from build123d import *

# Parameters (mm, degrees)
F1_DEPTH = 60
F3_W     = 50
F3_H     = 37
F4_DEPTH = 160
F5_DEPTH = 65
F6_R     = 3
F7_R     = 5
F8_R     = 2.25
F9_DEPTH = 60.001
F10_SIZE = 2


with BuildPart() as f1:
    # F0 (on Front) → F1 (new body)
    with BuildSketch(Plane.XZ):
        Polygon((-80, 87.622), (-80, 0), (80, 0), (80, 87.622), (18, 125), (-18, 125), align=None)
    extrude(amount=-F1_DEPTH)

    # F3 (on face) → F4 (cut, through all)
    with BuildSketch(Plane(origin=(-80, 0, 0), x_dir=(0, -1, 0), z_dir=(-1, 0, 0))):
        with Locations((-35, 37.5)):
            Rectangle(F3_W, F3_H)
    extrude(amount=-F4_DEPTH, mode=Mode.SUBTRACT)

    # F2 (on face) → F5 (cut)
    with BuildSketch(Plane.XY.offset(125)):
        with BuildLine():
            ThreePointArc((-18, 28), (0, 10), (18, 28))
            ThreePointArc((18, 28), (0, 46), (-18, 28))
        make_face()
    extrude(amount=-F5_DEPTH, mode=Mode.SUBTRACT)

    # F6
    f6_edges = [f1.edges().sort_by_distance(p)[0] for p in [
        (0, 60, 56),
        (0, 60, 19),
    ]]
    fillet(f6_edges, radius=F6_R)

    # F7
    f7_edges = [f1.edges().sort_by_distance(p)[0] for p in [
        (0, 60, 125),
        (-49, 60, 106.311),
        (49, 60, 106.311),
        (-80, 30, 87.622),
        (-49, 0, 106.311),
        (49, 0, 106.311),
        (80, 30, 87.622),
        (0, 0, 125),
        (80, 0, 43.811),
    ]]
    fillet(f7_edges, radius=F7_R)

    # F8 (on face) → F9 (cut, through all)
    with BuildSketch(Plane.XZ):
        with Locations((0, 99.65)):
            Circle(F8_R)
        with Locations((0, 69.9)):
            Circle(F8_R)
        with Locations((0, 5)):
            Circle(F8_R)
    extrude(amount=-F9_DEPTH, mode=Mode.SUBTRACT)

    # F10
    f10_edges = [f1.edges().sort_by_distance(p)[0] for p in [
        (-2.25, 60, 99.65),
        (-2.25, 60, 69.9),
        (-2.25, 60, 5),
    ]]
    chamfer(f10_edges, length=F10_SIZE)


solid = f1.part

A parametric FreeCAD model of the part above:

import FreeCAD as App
import Part
import Sketcher
from FreeCAD import Vector
Q = App.Units.Quantity


def edges_at(feature, points):
    """Names of the edges that pass closest to the given points."""
    edges = feature.Shape.Edges
    near = lambda p: min(range(len(edges)), key=lambda i: edges[i].distToShape(Part.Vertex(*p))[0])
    return sorted({f"Edge{near(p) + 1}" for p in points})

doc = App.newDocument("Part")
body = doc.addObject("PartDesign::Body", "Body")

sketch1 = body.newObject("Sketcher::SketchObject", "Sketch")
sketch1.AttachmentSupport = (doc.getObject("XZ_Plane"), [""])
sketch1.MapMode = "FlatFace"
sketch1.addGeometry(Part.LineSegment(Vector(-80, 88, 0), Vector(-80, 0, 0)), False)
sketch1.addGeometry(Part.LineSegment(Vector(-80, 0, 0), Vector(80, 0, 0)), False)
sketch1.addGeometry(Part.LineSegment(Vector(80, 0, 0), Vector(80, 88, 0)), False)
sketch1.addGeometry(Part.LineSegment(Vector(80, 88, 0), Vector(18, 125, 0)), False)
sketch1.addGeometry(Part.LineSegment(Vector(18, 125, 0), Vector(-18, 125, 0)), False)
sketch1.addGeometry(Part.LineSegment(Vector(-18, 125, 0), Vector(-80, 88, 0)), False)
sketch1.addConstraint(Sketcher.Constraint("Coincident", 0, 2, 1, 1))
sketch1.addConstraint(Sketcher.Constraint("Coincident", 1, 2, 2, 1))
sketch1.addConstraint(Sketcher.Constraint("Coincident", 2, 2, 3, 1))
sketch1.addConstraint(Sketcher.Constraint("Coincident", 3, 2, 4, 1))
sketch1.addConstraint(Sketcher.Constraint("Coincident", 4, 2, 5, 1))
sketch1.addConstraint(Sketcher.Constraint("Coincident", 5, 2, 0, 1))
sketch1.addConstraint(Sketcher.Constraint("Vertical", 0))
sketch1.addConstraint(Sketcher.Constraint("Horizontal", 1))
sketch1.addConstraint(Sketcher.Constraint("Vertical", 2))
sketch1.addConstraint(Sketcher.Constraint("Horizontal", 4))
sketch1.addConstraint(Sketcher.Constraint("Symmetric", 0, 2, 1, 2, -1, 1))
sketch1.addConstraint(Sketcher.Constraint("Horizontal", 2, 2, 5, 2))
sketch1.addConstraint(Sketcher.Constraint("Equal", 3, 5))
sketch1.addConstraint(Sketcher.Constraint("DistanceX", 1, 1, 1, 2, Q("160 mm")))
sketch1.addConstraint(Sketcher.Constraint("DistanceX", 4, 2, 4, 1, Q("36 mm")))
sketch1.addConstraint(Sketcher.Constraint("DistanceY", -1, 1, 3, 2, Q("125 mm")))
sketch1.addConstraint(Sketcher.Constraint("DistanceY", 0, 2, 0, 1, Q("87.622 mm")))
pad1 = body.newObject("PartDesign::Pad", "Pad")
pad1.Profile = sketch1
pad1.Length = 60
pad1.Reversed = True

sketch2 = body.newObject("Sketcher::SketchObject", "Sketch001")
sketch2.AttachmentSupport = (doc.getObject("YZ_Plane"), [""])
sketch2.MapMode = "FlatFace"
sketch2.AttachmentOffset = App.Placement(Vector(0, 0, -80), App.Rotation())
sketch2.addGeometry(Part.LineSegment(Vector(60, 56, 0), Vector(60, 19, 0)), False)
sketch2.addGeometry(Part.LineSegment(Vector(60, 19, 0), Vector(10, 19, 0)), False)
sketch2.addGeometry(Part.LineSegment(Vector(10, 19, 0), Vector(10, 56, 0)), False)
sketch2.addGeometry(Part.LineSegment(Vector(10, 56, 0), Vector(60, 56, 0)), False)
sketch2.addConstraint(Sketcher.Constraint("Coincident", 0, 2, 1, 1))
sketch2.addConstraint(Sketcher.Constraint("Coincident", 1, 2, 2, 1))
sketch2.addConstraint(Sketcher.Constraint("Coincident", 2, 2, 3, 1))
sketch2.addConstraint(Sketcher.Constraint("Coincident", 3, 2, 0, 1))
sketch2.addConstraint(Sketcher.Constraint("Vertical", 0))
sketch2.addConstraint(Sketcher.Constraint("Horizontal", 1))
sketch2.addConstraint(Sketcher.Constraint("Vertical", 2))
sketch2.addConstraint(Sketcher.Constraint("Horizontal", 3))
sketch2.addConstraint(Sketcher.Constraint("DistanceX", 1, 2, 1, 1, Q("50 mm")))
sketch2.addConstraint(Sketcher.Constraint("DistanceY", 0, 2, 0, 1, Q("37 mm")))
sketch2.addConstraint(Sketcher.Constraint("DistanceX", -1, 1, 0, 2, Q("60 mm")))
sketch2.addConstraint(Sketcher.Constraint("DistanceY", -1, 1, 0, 2, Q("19 mm")))
pocket1 = body.newObject("PartDesign::Pocket", "Pocket")
pocket1.Profile = sketch2
pocket1.Type = "ThroughAll"
pocket1.Reversed = True

sketch3 = body.newObject("Sketcher::SketchObject", "Sketch002")
sketch3.AttachmentSupport = (doc.getObject("XY_Plane"), [""])
sketch3.MapMode = "FlatFace"
sketch3.AttachmentOffset = App.Placement(Vector(0, 0, 125), App.Rotation())
sketch3.addGeometry(Part.Circle(Vector(0, 28, 0), Vector(0, 0, 1), 18), False)
sketch3.addConstraint(Sketcher.Constraint("PointOnObject", 0, 3, -2))
sketch3.addConstraint(Sketcher.Constraint("Diameter", 0, Q("36 mm")))
sketch3.addConstraint(Sketcher.Constraint("DistanceY", -1, 1, 0, 3, Q("28 mm")))
pocket2 = body.newObject("PartDesign::Pocket", "Pocket001")
pocket2.Profile = sketch3
pocket2.Length = 65
doc.recompute()

fillet = body.newObject("PartDesign::Fillet", "Fillet")
fillet.Base = (pocket2, edges_at(pocket2, [(0, 60, 56), (0, 60, 19)]))
fillet.Radius = 3
doc.recompute()

fillet2 = body.newObject("PartDesign::Fillet", "Fillet001")
fillet2.Base = (fillet, edges_at(fillet, [
    (0, 60, 125),
    (-49, 60, 106.311),
    (49, 60, 106.311),
    (-80, 30, 87.622),
    (-49, 0, 106.311),
    (49, 0, 106.311),
    (80, 30, 87.622),
    (0, 0, 125),
    (80, 0, 43.811),
]))
fillet2.Radius = 5

sketch4 = body.newObject("Sketcher::SketchObject", "Sketch003")
sketch4.AttachmentSupport = (doc.getObject("XZ_Plane"), [""])
sketch4.MapMode = "FlatFace"
sketch4.addGeometry(Part.Circle(Vector(0, 99.7, 0), Vector(0, 0, 1), 2.2), False)
sketch4.addGeometry(Part.Circle(Vector(0, 69.9, 0), Vector(0, 0, 1), 2.2), False)
sketch4.addGeometry(Part.Circle(Vector(0, 5, 0), Vector(0, 0, 1), 2.2), False)
sketch4.addConstraint(Sketcher.Constraint("Equal", 0, 1))
sketch4.addConstraint(Sketcher.Constraint("Equal", 1, 2))
sketch4.addConstraint(Sketcher.Constraint("PointOnObject", 0, 3, -2))
sketch4.addConstraint(Sketcher.Constraint("PointOnObject", 1, 3, -2))
sketch4.addConstraint(Sketcher.Constraint("PointOnObject", 2, 3, -2))
sketch4.addConstraint(Sketcher.Constraint("Diameter", 0, Q("4.5 mm")))
sketch4.addConstraint(Sketcher.Constraint("DistanceY", -1, 1, 2, 3, Q("5 mm")))
sketch4.addConstraint(Sketcher.Constraint("DistanceY", -1, 1, 1, 3, Q("69.9 mm")))
sketch4.addConstraint(Sketcher.Constraint("DistanceY", -1, 1, 0, 3, Q("99.65 mm")))
pocket3 = body.newObject("PartDesign::Pocket", "Pocket002")
pocket3.Profile = sketch4
pocket3.Type = "ThroughAll"
doc.recompute()

chamfer = body.newObject("PartDesign::Chamfer", "Chamfer")
chamfer.Base = (pocket3, edges_at(pocket3, [(-2.25, 60, 99.65), (-2.25, 60, 69.9), (-2.25, 60, 5)]))
chamfer.Size = 2

doc.recompute()
